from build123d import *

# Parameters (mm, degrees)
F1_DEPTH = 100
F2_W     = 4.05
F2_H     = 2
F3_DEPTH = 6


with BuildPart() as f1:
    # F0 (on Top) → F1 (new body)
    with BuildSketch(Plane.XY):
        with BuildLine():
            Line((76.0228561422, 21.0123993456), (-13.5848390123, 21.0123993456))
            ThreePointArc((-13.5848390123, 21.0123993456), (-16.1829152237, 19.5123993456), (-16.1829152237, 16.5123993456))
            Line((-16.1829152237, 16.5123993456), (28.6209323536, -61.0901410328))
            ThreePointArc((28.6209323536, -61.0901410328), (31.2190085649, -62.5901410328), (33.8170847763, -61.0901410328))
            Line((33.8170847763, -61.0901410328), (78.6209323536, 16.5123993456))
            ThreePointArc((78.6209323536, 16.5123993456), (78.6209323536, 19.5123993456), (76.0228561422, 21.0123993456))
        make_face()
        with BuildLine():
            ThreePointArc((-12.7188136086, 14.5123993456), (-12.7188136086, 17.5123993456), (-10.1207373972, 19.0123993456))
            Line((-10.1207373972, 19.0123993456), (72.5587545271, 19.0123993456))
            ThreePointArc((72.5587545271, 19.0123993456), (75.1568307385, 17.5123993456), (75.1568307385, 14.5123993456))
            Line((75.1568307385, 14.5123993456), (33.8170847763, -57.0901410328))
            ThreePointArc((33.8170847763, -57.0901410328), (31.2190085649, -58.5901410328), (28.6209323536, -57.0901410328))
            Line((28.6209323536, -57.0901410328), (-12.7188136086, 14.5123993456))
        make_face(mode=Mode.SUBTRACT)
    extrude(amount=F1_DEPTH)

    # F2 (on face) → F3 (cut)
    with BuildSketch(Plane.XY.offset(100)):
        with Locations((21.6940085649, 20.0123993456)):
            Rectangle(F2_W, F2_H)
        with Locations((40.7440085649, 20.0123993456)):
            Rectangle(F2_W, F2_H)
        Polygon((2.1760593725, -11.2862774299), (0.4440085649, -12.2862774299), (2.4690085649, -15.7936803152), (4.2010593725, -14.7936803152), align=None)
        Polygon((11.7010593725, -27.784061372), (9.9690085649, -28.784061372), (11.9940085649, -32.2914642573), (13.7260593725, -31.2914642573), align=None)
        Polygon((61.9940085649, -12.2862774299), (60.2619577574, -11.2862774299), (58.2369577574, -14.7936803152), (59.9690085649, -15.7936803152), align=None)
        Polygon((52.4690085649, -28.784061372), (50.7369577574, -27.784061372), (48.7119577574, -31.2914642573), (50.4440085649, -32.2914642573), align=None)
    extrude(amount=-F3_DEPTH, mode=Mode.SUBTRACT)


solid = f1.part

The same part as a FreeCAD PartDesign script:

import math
import FreeCAD as App
import Part
import Sketcher
from FreeCAD import Vector
Q = App.Units.Quantity


def add_polygon(sketch, points):
    """Adds a closed chain of lines whose ends are joined by coincident constraints."""
    first, n = sketch.GeometryCount, len(points)
    for a, b in zip(points, points[1:] + points[:1]):
        sketch.addGeometry(Part.LineSegment(App.Vector(*a, 0), App.Vector(*b, 0)), False)
    for i in range(n):
        sketch.addConstraint(Sketcher.Constraint("Coincident", first + i, 2, first + (i + 1) % n, 1))

doc = App.newDocument("Part")
body = doc.addObject("PartDesign::Body", "Body")

# Sketch on XY plane
sketch1 = body.newObject("Sketcher::SketchObject", "Sketch")
sketch1.AttachmentSupport = (doc.getObject("XY_Plane"), [""])
sketch1.MapMode = "FlatFace"
sketch1.addGeometry(Part.LineSegment(Vector(76, 21, 0), Vector(-13.6, 21, 0)), False)
sketch1.addGeometry(Part.ArcOfCircle(Part.Circle(Vector(-13.6, 18, 0), Vector(0, 0, 1), 3), math.radians(90), math.radians(210)), False)
sketch1.addGeometry(Part.LineSegment(Vector(-16.2, 16.5, 0), Vector(28.6, -61.1, 0)), False)
sketch1.addGeometry(Part.ArcOfCircle(Part.Circle(Vector(31.2, -59.6, 0), Vector(0, 0, 1), 3), math.radians(-150), math.radians(-30)), False)
sketch1.addGeometry(Part.LineSegment(Vector(33.8, -61.1, 0), Vector(78.6, 16.5, 0)), False)
sketch1.addGeometry(Part.ArcOfCircle(Part.Circle(Vector(76, 18, 0), Vector(0, 0, 1), 3), math.radians(-30), math.radians(90)), False)
sketch1.addGeometry(Part.LineSegment(Vector(28.6, -57.1, 0), Vector(-12.7, 14.5, 0)), False)
sketch1.addGeometry(Part.ArcOfCircle(Part.Circle(Vector(-10.1, 16, 0), Vector(0, 0, 1), 3), math.radians(90), math.radians(210)), False)
sketch1.addGeometry(Part.LineSegment(Vector(-10.1, 19, 0), Vector(72.6, 19, 0)), False)
sketch1.addGeometry(Part.ArcOfCircle(Part.Circle(Vector(72.6, 16, 0), Vector(0, 0, 1), 3), math.radians(-30), math.radians(90)), False)
sketch1.addGeometry(Part.LineSegment(Vector(75.2, 14.5, 0), Vector(33.8, -57.1, 0)), False)
sketch1.addGeometry(Part.ArcOfCircle(Part.Circle(Vector(31.2, -55.6, 0), Vector(0, 0, 1), 3), math.radians(-150), math.radians(-30)), False)
sketch1.addConstraint(Sketcher.Constraint("Tangent", 0, 2, 1, 1))
sketch1.addConstraint(Sketcher.Constraint("Tangent", 1, 2, 2, 1))
sketch1.addConstraint(Sketcher.Constraint("Tangent", 2, 2, 3, 1))
sketch1.addConstraint(Sketcher.Constraint("Tangent", 3, 2, 4, 1))
sketch1.addConstraint(Sketcher.Constraint("Tangent", 4, 2, 5, 1))
sketch1.addConstraint(Sketcher.Constraint("Tangent", 5, 2, 0, 1))
sketch1.addConstraint(Sketcher.Constraint("Tangent", 6, 2, 7, 2))
sketch1.addConstraint(Sketcher.Constraint("Tangent", 7, 1, 8, 1))
sketch1.addConstraint(Sketcher.Constraint("Tangent", 8, 2, 9, 2))
sketch1.addConstraint(Sketcher.Constraint("Tangent", 9, 1, 10, 1))
sketch1.addConstraint(Sketcher.Constraint("Tangent", 10, 2, 11, 2))
sketch1.addConstraint(Sketcher.Constraint("Tangent", 11, 1, 6, 1))
sketch1.addConstraint(Sketcher.Constraint("Horizontal", 0))
sketch1.addConstraint(Sketcher.Constraint("Horizontal", 8))
sketch1.addConstraint(Sketcher.Constraint("Equal", 1, 3))
sketch1.addConstraint(Sketcher.Constraint("Equal", 3, 5))
sketch1.addConstraint(Sketcher.Constraint("Equal", 5, 7))
sketch1.addConstraint(Sketcher.Constraint("Equal", 7, 9))
sketch1.addConstraint(Sketcher.Constraint("Equal", 9, 11))
sketch1.addConstraint(Sketcher.Constraint("Parallel", 2, 6))
sketch1.addConstraint(Sketcher.Constraint("Parallel", 4, 10))
sketch1.addConstraint(Sketcher.Constraint("Horizontal", 2, 2, 3, 2))
sketch1.addConstraint(Sketcher.Constraint("Vertical", 3, 3, 11, 3))
sketch1.addConstraint(Sketcher.Constraint("Radius", 1, 3.0))
sketch1.addConstraint(Sketcher.Constraint("Angle", 2, Q("-60 deg")))
sketch1.addConstraint(Sketcher.Constraint("DistanceY", 7, 3, 1, 3, 2.0))
sketch1.addConstraint(Sketcher.Constraint("DistanceY", 3, 3, 11, 3, 4.0))
sketch1.addConstraint(Sketcher.Constraint("DistanceX", 8, 1, 8, 2, 82.679492))
sketch1.addConstraint(Sketcher.Constraint("DistanceY", -1, 1, 1, 3, 18.012399))
sketch1.addConstraint(Sketcher.Constraint("DistanceX", 1, 3, -1, 1, 13.584839))
pad1 = body.newObject("PartDesign::Pad", "Pad")
pad1.Profile = sketch1
pad1.Length = 100

# Sketch on XY plane
sketch2 = body.newObject("Sketcher::SketchObject", "Sketch001")
sketch2.AttachmentSupport = (doc.getObject("XY_Plane"), [""])
sketch2.MapMode = "FlatFace"
sketch2.AttachmentOffset = App.Placement(Vector(0, 0, 100), App.Rotation())
add_polygon(sketch2, [(19.7, 21), (19.7, 19), (23.7, 19), (23.7, 21)])  # lines 0-3
add_polygon(sketch2, [(38.7, 21), (38.7, 19), (42.8, 19), (42.8, 21)])  # lines 4-7
add_polygon(sketch2, [(2.2, -11.3), (0.4, -12.3), (2.5, -15.8), (4.2, -14.8)])  # lines 8-11
add_polygon(sketch2, [(11.7, -27.8), (10, -28.8), (12, -32.3), (13.7, -31.3)])  # lines 12-15
add_polygon(sketch2, [(62, -12.3), (60.3, -11.3), (58.2, -14.8), (60, -15.8)])  # lines 16-19
add_polygon(sketch2, [(52.5, -28.8), (50.7, -27.8), (48.7, -31.3), (50.4, -32.3)])  # lines 20-23
sketch2.addConstraint(Sketcher.Constraint("Vertical", 0))
sketch2.addConstraint(Sketcher.Constraint("Horizontal", 1))
sketch2.addConstraint(Sketcher.Constraint("Vertical", 2))
sketch2.addConstraint(Sketcher.Constraint("Horizontal", 3))
sketch2.addConstraint(Sketcher.Constraint("Vertical", 4))
sketch2.addConstraint(Sketcher.Constraint("Horizontal", 5))
sketch2.addConstraint(Sketcher.Constraint("Vertical", 6))
sketch2.addConstraint(Sketcher.Constraint("Horizontal", 7))
sketch2.addConstraint(Sketcher.Constraint("Perpendicular", 8, 9))
sketch2.addConstraint(Sketcher.Constraint("Perpendicular", 9, 10))
sketch2.addConstraint(Sketcher.Constraint("Perpendicular", 10, 11))
sketch2.addConstraint(Sketcher.Constraint("Perpendicular", 11, 12))
sketch2.addConstraint(Sketcher.Constraint("Perpendicular", 12, 13))
sketch2.addConstraint(Sketcher.Constraint("Perpendicular", 13, 14))
sketch2.addConstraint(Sketcher.Constraint("Perpendicular", 14, 15))
sketch2.addConstraint(Sketcher.Constraint("Perpendicular", 16, 17))
sketch2.addConstraint(Sketcher.Constraint("Perpendicular", 17, 18))
sketch2.addConstraint(Sketcher.Constraint("Perpendicular", 18, 19))
sketch2.addConstraint(Sketcher.Constraint("Perpendicular", 19, 20))
sketch2.addConstraint(Sketcher.Constraint("Perpendicular", 20, 21))
sketch2.addConstraint(Sketcher.Constraint("Perpendicular", 21, 22))
sketch2.addConstraint(Sketcher.Constraint("Perpendicular", 22, 23))
sketch2.addConstraint(Sketcher.Constraint("Horizontal", 1, 2, 4, 2))
sketch2.addConstraint(Sketcher.Constraint("Horizontal", 3, 2, 6, 2))
sketch2.addConstraint(Sketcher.Constraint("Horizontal", 11, 2, 16, 2))
sketch2.addConstraint(Sketcher.Constraint("Horizontal", 10, 2, 17, 2))
sketch2.addConstraint(Sketcher.Constraint("Horizontal", 9, 2, 18, 2))
sketch2.addConstraint(Sketcher.Constraint("Horizontal", 15, 2, 20, 2))
sketch2.addConstraint(Sketcher.Constraint("Horizontal", 14, 2, 21, 2))
sketch2.addConstraint(Sketcher.Constraint("Horizontal", 13, 2, 22, 2))
sketch2.addConstraint(Sketcher.Constraint("Equal", 3, 5))
sketch2.addConstraint(Sketcher.Constraint("Equal", 10, 12))
sketch2.addConstraint(Sketcher.Constraint("Equal", 11, 13))
sketch2.addConstraint(Sketcher.Constraint("Equal", 14, 16))
sketch2.addConstraint(Sketcher.Constraint("DistanceY", 0, 2, 0, 1, 2.0))
sketch2.addConstraint(Sketcher.Constraint("Angle", 8, Q("-150 deg")))
sketch2.addConstraint(Sketcher.Constraint("Distance", 8, 2.0))
sketch2.addConstraint(Sketcher.Constraint("DistanceX", 1, 2, 4, 2, 15.0))
sketch2.addConstraint(Sketcher.Constraint("DistanceX", 1, 1, 1, 2, 4.05))
sketch2.addConstraint(Sketcher.Constraint("DistanceX", 9, 2, 0, 2, 17.2))
sketch2.addConstraint(Sketcher.Constraint("DistanceX", 9, 2, 12, 2, 7.5))
sketch2.addConstraint(Sketcher.Constraint("DistanceX", 5, 2, 18, 2, 17.2))
sketch2.addConstraint(Sketcher.Constraint("DistanceX", 20, 2, 17, 2, 7.5))
sketch2.addConstraint(Sketcher.Constraint("Distance", 9, 4.05))
sketch2.addConstraint(Sketcher.Constraint("DistanceY", -1, 1, 0, 2, 19.012399))
sketch2.addConstraint(Sketcher.Constraint("DistanceX", -1, 1, 0, 2, 19.669009))
sketch2.addConstraint(Sketcher.Constraint("DistanceY", 9, 2, -1, 1, 15.79368))
sketch2.addConstraint(Sketcher.Constraint("DistanceY", 12, 2, -1, 1, 28.784061))
pocket1 = body.newObject("PartDesign::Pocket", "Pocket")
pocket1.Profile = sketch2
pocket1.Length = 6

doc.recompute()
